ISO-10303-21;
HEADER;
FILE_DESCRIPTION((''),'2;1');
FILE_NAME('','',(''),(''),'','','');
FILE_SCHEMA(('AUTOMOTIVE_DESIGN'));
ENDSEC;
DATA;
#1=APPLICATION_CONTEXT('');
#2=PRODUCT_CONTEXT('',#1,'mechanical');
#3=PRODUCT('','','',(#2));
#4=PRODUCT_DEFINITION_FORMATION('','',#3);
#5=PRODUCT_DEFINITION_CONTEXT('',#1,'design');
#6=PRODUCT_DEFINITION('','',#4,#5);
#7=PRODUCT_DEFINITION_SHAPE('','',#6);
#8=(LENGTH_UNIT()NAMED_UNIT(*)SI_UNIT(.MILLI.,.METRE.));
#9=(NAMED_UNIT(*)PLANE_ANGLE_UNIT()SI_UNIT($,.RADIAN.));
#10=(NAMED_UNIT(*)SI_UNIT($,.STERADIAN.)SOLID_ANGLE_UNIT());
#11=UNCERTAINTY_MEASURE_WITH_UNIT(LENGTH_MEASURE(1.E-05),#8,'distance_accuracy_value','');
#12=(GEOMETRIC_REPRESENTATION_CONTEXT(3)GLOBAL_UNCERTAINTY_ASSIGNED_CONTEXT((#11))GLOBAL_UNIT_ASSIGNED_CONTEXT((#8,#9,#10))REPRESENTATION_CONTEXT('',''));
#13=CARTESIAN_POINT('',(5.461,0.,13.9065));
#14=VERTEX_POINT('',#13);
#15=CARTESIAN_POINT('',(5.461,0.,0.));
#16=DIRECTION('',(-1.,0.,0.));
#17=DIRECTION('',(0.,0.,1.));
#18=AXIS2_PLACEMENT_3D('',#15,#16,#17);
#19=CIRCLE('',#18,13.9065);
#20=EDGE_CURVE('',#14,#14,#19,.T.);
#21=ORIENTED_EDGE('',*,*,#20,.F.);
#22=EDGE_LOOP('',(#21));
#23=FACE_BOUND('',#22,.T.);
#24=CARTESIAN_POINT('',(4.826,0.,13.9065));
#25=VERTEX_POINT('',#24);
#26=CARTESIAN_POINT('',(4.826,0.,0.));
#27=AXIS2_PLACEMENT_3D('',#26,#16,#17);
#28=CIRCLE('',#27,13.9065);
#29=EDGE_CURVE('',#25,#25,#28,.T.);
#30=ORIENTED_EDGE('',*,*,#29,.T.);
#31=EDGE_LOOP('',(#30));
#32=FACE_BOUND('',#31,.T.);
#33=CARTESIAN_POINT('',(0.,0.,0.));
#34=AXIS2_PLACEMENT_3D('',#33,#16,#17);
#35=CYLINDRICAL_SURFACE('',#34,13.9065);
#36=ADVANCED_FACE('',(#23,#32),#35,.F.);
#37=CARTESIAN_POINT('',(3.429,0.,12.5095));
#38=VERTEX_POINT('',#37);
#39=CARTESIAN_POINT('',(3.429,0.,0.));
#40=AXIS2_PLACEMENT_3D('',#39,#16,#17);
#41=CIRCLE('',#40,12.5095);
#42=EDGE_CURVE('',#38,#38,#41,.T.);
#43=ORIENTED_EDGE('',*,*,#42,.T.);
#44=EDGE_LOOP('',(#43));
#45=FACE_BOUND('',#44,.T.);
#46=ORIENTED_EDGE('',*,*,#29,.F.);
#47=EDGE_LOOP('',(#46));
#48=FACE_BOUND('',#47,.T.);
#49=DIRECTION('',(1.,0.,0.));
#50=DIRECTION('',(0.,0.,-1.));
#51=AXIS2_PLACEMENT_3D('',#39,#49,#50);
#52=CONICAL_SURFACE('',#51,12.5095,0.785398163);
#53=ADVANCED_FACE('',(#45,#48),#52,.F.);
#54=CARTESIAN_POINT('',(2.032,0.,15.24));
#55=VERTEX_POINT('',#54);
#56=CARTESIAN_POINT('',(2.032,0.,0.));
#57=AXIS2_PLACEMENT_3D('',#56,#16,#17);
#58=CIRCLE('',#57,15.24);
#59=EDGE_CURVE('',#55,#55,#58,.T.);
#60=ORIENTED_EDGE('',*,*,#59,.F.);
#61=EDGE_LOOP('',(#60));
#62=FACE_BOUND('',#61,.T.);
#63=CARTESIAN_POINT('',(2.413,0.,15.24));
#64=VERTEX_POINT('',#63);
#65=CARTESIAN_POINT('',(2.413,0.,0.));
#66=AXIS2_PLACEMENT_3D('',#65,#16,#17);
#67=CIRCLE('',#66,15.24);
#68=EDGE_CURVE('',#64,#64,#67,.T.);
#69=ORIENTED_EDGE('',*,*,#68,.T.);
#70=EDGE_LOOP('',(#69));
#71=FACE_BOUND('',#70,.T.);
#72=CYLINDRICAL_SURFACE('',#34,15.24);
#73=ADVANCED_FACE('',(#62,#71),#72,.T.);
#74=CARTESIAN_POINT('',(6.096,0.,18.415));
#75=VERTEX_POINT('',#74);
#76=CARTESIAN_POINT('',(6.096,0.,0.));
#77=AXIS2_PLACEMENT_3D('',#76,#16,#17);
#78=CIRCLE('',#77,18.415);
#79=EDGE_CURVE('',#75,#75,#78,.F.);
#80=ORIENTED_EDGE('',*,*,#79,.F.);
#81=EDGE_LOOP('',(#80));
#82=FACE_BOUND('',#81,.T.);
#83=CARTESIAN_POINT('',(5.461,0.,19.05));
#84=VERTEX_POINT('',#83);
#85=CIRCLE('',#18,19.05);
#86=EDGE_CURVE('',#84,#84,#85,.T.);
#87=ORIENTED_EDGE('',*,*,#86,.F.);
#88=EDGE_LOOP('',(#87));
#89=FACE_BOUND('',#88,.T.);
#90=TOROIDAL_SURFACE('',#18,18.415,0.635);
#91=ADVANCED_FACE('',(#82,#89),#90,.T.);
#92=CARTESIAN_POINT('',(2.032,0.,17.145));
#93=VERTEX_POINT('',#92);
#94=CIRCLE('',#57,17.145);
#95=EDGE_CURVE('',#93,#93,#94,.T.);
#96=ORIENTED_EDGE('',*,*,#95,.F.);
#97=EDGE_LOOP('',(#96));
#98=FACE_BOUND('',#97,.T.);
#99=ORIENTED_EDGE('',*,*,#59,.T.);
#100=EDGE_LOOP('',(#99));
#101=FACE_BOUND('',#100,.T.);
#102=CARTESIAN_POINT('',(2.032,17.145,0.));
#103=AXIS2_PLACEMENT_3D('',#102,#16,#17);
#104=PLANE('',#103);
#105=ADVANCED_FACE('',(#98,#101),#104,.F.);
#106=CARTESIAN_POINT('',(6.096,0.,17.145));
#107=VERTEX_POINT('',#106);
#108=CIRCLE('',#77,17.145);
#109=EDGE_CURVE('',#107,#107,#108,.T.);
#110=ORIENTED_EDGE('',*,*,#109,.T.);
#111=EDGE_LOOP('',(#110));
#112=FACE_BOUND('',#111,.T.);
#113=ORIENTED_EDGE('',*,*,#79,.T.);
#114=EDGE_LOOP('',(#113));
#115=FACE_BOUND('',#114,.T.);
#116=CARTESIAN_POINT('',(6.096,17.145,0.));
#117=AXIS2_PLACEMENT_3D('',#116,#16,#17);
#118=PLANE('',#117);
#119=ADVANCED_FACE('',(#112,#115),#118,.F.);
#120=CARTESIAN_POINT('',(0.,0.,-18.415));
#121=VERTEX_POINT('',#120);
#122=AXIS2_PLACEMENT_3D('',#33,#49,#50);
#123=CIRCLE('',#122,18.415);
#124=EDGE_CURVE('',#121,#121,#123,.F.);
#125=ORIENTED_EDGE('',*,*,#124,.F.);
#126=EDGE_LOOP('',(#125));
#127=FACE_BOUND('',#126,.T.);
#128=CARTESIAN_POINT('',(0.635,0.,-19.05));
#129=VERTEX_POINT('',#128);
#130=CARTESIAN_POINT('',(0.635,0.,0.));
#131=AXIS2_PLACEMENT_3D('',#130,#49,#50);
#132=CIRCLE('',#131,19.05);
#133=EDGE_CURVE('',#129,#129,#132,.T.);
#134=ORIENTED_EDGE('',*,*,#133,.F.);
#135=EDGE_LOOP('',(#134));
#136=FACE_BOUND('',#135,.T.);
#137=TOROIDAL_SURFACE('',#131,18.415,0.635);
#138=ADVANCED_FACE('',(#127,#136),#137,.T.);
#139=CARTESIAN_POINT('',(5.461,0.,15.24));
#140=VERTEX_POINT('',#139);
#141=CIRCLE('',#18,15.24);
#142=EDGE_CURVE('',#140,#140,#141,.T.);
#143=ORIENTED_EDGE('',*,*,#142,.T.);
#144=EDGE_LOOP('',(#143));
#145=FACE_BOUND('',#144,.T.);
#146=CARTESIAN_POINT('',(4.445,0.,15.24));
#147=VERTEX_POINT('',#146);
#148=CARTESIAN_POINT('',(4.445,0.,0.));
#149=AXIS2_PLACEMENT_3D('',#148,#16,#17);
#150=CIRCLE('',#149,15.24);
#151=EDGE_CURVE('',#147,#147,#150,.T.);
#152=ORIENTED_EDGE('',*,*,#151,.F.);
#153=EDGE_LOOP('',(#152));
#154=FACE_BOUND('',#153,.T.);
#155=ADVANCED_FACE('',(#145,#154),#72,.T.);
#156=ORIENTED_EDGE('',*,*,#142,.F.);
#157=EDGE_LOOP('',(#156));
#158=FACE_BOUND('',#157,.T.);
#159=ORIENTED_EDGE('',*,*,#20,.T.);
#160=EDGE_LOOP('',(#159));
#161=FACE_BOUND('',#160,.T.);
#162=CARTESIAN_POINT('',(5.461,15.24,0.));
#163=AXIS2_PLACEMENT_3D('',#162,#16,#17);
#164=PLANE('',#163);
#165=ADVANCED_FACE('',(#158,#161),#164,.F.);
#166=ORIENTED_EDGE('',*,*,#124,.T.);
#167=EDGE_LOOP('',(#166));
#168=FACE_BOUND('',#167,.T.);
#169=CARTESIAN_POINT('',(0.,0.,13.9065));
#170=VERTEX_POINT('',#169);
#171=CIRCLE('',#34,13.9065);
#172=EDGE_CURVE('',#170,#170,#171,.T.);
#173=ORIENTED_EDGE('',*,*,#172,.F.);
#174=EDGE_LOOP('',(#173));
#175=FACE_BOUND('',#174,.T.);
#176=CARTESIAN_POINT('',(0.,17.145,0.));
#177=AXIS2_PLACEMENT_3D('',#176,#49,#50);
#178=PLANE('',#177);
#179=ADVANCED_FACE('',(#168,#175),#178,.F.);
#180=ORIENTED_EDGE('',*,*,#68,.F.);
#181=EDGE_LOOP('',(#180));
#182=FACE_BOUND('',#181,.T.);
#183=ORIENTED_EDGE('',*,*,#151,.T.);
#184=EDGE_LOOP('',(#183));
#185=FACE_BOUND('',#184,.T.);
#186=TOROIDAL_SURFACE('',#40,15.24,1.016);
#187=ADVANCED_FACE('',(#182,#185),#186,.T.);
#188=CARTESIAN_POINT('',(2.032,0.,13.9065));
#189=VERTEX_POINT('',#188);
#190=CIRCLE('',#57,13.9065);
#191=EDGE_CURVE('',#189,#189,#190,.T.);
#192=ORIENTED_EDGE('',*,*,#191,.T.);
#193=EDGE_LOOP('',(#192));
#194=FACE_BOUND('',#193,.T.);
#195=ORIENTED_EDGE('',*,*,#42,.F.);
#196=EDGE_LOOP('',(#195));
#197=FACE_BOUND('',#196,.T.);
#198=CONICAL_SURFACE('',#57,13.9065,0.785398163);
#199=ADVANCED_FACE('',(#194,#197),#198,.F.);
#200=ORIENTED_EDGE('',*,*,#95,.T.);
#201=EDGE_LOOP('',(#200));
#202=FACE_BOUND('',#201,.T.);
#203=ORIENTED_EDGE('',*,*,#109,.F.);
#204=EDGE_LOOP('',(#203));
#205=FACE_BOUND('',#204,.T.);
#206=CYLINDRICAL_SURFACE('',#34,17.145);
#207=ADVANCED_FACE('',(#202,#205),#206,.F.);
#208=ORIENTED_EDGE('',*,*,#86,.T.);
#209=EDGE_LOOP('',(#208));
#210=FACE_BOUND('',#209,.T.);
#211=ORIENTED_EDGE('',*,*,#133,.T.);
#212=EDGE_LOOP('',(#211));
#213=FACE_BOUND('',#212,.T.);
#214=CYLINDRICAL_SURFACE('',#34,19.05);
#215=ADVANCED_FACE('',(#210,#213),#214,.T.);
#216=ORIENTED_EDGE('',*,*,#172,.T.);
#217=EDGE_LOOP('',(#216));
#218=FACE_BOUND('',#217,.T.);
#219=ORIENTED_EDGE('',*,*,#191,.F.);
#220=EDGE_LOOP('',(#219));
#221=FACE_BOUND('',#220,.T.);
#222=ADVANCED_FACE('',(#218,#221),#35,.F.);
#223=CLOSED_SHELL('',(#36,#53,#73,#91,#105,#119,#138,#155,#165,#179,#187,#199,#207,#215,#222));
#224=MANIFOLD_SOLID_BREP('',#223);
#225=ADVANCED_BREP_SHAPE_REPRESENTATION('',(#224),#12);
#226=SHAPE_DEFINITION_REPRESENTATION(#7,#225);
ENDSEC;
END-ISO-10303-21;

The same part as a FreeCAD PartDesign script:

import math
import FreeCAD as App
import Part
import Sketcher
from FreeCAD import Vector
Q = App.Units.Quantity


def edges_at(feature, points):
    """Names of the edges that pass closest to the given points."""
    edges = feature.Shape.Edges
    near = lambda p: min(range(len(edges)), key=lambda i: edges[i].distToShape(Part.Vertex(*p))[0])
    return sorted({f"Edge{near(p) + 1}" for p in points})

doc = App.newDocument("Part")
body = doc.addObject("PartDesign::Body", "Body")

# Sketch on XY plane
sketch1 = body.newObject("Sketcher::SketchObject", "Sketch")
sketch1.AttachmentSupport = (doc.getObject("XY_Plane"), [""])
sketch1.MapMode = "FlatFace"
sketch1.addGeometry([
    Part.LineSegment(Vector(2.032, 17.145, 0), Vector(6.096, 17.145, 0)),  # 0
    Part.LineSegment(Vector(6.096, 17.145, 0), Vector(6.096, 19.05, 0)),  # 1
    Part.LineSegment(Vector(6.096, 19.05, 0), Vector(0, 19.05, 0)),  # 2
    Part.LineSegment(Vector(0, 19.05, 0), Vector(0, 13.9065, 0)),  # 3
    Part.LineSegment(Vector(0, 13.9065, 0), Vector(2.032, 13.9065, 0)),  # 4
    Part.LineSegment(Vector(2.032, 13.9065, 0), Vector(3.429, 12.5095, 0)),  # 5
    Part.LineSegment(Vector(3.429, 12.5095, 0), Vector(4.826, 13.9065, 0)),  # 6
    Part.LineSegment(Vector(4.826, 13.9065, 0), Vector(5.461, 13.9065, 0)),  # 7
    Part.LineSegment(Vector(5.461, 13.9065, 0), Vector(5.461, 15.24, 0)),  # 8
    Part.LineSegment(Vector(5.461, 15.24, 0), Vector(4.445, 15.24, 0)),  # 9
    Part.ArcOfCircle(Part.Circle(Vector(3.429, 15.24, 0), Vector(0, 0, 1), 1.016), math.radians(0), math.radians(180)),  # 10
    Part.LineSegment(Vector(2.413, 15.24, 0), Vector(2.032, 15.24, 0)),  # 11
    Part.LineSegment(Vector(2.032, 15.24, 0), Vector(2.032, 17.145, 0)),  # 12
], False)
sketch1.addConstraint([
    Sketcher.Constraint("Coincident", 0, 2, 1, 1),
    Sketcher.Constraint("Coincident", 1, 2, 2, 1),
    Sketcher.Constraint("Coincident", 2, 2, 3, 1),
    Sketcher.Constraint("Coincident", 3, 2, 4, 1),
    Sketcher.Constraint("Coincident", 4, 2, 5, 1),
    Sketcher.Constraint("Coincident", 5, 2, 6, 1),
    Sketcher.Constraint("Coincident", 6, 2, 7, 1),
    Sketcher.Constraint("Coincident", 7, 2, 8, 1),
    Sketcher.Constraint("Coincident", 8, 2, 9, 1),
    Sketcher.Constraint("Coincident", 9, 2, 10, 1),
    Sketcher.Constraint("Coincident", 10, 2, 11, 1),
    Sketcher.Constraint("Coincident", 11, 2, 12, 1),
    Sketcher.Constraint("Coincident", 12, 2, 0, 1),
    Sketcher.Constraint("Horizontal", 0),
    Sketcher.Constraint("Vertical", 1),
    Sketcher.Constraint("Horizontal", 2),
    Sketcher.Constraint("Vertical", 3),
    Sketcher.Constraint("Horizontal", 4),
    Sketcher.Constraint("Horizontal", 7),
    Sketcher.Constraint("Vertical", 8),
    Sketcher.Constraint("Horizontal", 9),
    Sketcher.Constraint("Horizontal", 11),
    Sketcher.Constraint("Vertical", 12),
    Sketcher.Constraint("PointOnObject", 2, 2, -2),
    Sketcher.Constraint("Perpendicular", 5, 6),
    Sketcher.Constraint("Horizontal", 4, 2, 6, 2),
    Sketcher.Constraint("Horizontal", 10, 3, 8, 2),
    Sketcher.Constraint("Horizontal", 9, 2, 10, 2),
    Sketcher.Constraint("Vertical", 10, 3, 5, 2),
    Sketcher.Constraint("Vertical", 4, 2, 11, 2),
    Sketcher.Constraint("Equal", 1, 12),
    Sketcher.Constraint("Equal", 5, 6),
    Sketcher.Constraint("Radius", 10, Q("0.04 in")),
    Sketcher.Constraint("DistanceX", 0, 1, 0, 2, Q("0.16 in")),
    Sketcher.Constraint("DistanceX", 2, 2, 2, 1, Q("0.24 in")),
    Sketcher.Constraint("DistanceX", 9, 2, 9, 1, Q("0.04 in")),
    Sketcher.Constraint("DistanceY", -1, 1, 10, 3, Q("0.6 in")),
    Sketcher.Constraint("DistanceX", 7, 1, 7, 2, Q("0.025 in")),
    Sketcher.Constraint("DistanceY", 1, 1, 1, 2, Q("0.075 in")),
    Sketcher.Constraint("DistanceY", 3, 2, 3, 1, Q("0.2025 in")),
])
revolution = body.newObject("PartDesign::Revolution", "Revolution")
revolution.Profile = sketch1
revolution.ReferenceAxis = (sketch1, ["H_Axis"])
revolution.Angle = 360
doc.recompute()

fillet = body.newObject("PartDesign::Fillet", "Fillet")
fillet.Base = (revolution, edges_at(revolution, [(6.096, 0, -19.05), (0, 0, -19.05)]))
fillet.Radius = Q("0.025 in")

doc.recompute()
